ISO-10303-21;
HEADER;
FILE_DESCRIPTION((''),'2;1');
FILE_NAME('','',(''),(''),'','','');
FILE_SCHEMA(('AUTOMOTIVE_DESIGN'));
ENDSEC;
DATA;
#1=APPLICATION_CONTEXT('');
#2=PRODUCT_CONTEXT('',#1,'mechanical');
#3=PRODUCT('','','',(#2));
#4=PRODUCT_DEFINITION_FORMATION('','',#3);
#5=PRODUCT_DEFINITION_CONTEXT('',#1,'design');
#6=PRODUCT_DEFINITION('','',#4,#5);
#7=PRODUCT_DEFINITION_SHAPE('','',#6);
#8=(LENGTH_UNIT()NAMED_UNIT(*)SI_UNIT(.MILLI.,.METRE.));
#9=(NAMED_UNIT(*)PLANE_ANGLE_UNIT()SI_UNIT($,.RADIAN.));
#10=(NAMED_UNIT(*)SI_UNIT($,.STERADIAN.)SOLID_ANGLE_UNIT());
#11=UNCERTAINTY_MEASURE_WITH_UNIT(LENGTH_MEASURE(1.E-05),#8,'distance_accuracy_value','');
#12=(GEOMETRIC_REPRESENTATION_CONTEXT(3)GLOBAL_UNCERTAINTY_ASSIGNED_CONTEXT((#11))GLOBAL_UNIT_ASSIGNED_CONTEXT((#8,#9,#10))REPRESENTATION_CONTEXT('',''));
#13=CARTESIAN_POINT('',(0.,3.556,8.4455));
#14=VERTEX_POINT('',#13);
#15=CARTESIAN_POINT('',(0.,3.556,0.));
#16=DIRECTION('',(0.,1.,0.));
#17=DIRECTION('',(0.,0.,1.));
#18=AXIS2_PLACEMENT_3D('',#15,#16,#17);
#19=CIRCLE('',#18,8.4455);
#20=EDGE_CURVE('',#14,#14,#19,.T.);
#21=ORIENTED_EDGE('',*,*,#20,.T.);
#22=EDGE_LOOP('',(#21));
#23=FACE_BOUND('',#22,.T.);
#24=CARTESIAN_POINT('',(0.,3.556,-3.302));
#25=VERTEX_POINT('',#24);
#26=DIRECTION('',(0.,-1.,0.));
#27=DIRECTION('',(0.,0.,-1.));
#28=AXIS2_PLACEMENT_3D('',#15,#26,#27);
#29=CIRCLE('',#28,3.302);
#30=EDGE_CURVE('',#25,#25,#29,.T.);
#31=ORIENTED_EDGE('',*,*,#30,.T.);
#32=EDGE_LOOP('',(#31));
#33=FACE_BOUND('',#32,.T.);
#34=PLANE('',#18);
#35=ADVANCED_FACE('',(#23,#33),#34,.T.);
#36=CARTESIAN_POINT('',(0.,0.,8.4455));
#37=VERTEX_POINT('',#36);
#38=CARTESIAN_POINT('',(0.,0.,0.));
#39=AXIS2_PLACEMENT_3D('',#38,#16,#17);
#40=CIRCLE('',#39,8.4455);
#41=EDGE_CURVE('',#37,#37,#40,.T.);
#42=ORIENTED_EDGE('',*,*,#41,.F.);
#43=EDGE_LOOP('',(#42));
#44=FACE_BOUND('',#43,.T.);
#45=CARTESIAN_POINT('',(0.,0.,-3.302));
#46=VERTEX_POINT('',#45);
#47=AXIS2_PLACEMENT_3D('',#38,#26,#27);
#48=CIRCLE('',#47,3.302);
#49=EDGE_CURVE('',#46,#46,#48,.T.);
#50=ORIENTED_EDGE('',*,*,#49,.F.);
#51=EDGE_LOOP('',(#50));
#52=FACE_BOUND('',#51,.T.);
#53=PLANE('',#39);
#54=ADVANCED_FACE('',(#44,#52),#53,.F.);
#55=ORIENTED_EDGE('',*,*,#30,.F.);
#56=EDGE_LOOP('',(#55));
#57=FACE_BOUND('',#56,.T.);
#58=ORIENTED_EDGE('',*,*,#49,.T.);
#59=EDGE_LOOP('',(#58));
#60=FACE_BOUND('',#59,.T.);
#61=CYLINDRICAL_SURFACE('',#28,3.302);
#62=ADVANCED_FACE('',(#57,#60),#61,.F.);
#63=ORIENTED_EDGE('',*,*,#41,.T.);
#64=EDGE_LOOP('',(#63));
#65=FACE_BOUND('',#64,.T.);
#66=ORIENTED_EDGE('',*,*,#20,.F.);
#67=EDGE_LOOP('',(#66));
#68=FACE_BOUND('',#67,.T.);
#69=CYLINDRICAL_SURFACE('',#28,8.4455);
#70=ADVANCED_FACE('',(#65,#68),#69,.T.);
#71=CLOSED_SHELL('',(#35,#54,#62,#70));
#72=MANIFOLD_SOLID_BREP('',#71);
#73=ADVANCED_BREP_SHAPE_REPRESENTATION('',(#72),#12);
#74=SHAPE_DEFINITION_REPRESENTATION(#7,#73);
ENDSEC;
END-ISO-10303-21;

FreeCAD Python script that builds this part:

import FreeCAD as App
import Part
import Sketcher

V = App.Vector
Q = App.Units.Quantity

doc = App.newDocument("Part")
body = doc.addObject("PartDesign::Body", "Body")

# Sketch on XZ plane
sketch1 = body.newObject("Sketcher::SketchObject", "Sketch")
sketch1.AttachmentSupport = (doc.getObject("XZ_Plane"), [""])
sketch1.MapMode = "FlatFace"
sketch1.addGeometry(Part.Circle(V(0, 0, 0), V(0, 0, 1), 8), False)
sketch1.addConstraint(Sketcher.Constraint("Coincident", 0, 3, -1, 1))
sketch1.addConstraint(Sketcher.Constraint("Diameter", 0, Q("0.665 in")))
pad1 = body.newObject("PartDesign::Pad", "Pad")
pad1.Profile = sketch1
pad1.Length = Q("0.14 in")
pad1.Reversed = True

# Sketch on XZ plane
sketch2 = body.newObject("Sketcher::SketchObject", "Sketch001")
sketch2.AttachmentSupport = (doc.getObject("XZ_Plane"), [""])
sketch2.MapMode = "FlatFace"
sketch2.addGeometry(Part.Circle(V(0, 0, 0), V(0, 0, 1), 3.3), False)
sketch2.addConstraint(Sketcher.Constraint("Coincident", 0, 3, -1, 1))
sketch2.addConstraint(Sketcher.Constraint("Diameter", 0, Q("0.26 in")))
pocket1 = body.newObject("PartDesign::Pocket", "Pocket")
pocket1.Profile = sketch2
pocket1.Type = "ThroughAll"

doc.recompute()
